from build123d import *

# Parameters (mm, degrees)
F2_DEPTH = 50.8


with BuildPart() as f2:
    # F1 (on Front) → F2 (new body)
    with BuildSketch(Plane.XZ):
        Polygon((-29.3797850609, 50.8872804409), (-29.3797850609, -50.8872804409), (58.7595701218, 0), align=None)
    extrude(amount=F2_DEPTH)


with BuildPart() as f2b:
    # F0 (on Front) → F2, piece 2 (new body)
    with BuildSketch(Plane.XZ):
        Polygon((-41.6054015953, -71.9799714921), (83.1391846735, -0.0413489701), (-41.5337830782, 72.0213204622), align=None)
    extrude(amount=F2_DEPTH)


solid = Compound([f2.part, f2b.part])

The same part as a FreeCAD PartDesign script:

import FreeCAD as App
import Part
import Sketcher
from FreeCAD import Vector
Q = App.Units.Quantity

doc = App.newDocument("Part")
params = doc.addObject("Spreadsheet::Sheet", "Params")
for row, (alias, value) in enumerate([
    ("pad1_length", "2 in"),
    ("pad2_length", "2 in"),
], start=1):
    params.set(f"A{row}", alias)
    params.set(f"B{row}", "=" + value)
    params.setAlias(f"B{row}", alias)

body = doc.addObject("PartDesign::Body", "Body")

# Sketch on XZ plane
sketch1 = body.newObject("Sketcher::SketchObject", "Sketch")
sketch1.AttachmentSupport = (doc.getObject("XZ_Plane"), [""])
sketch1.MapMode = "FlatFace"
sketch1.addGeometry([
    Part.LineSegment(Vector(-29, 51, 0), Vector(-29, -51, 0)),
    Part.LineSegment(Vector(-29, -51, 0), Vector(59, 0, 0)),
    Part.LineSegment(Vector(59, 0, 0), Vector(-29, 51, 0)),
], False)
sketch1.addConstraint([
    Sketcher.Constraint("Coincident", 0, 2, 1, 1),
    Sketcher.Constraint("Coincident", 1, 2, 2, 1),
    Sketcher.Constraint("Coincident", 2, 2, 0, 1),
    Sketcher.Constraint("Vertical", 0),
    Sketcher.Constraint("PointOnObject", 1, 2, -1),
    Sketcher.Constraint("Equal", 1, 2),
    Sketcher.Constraint("Angle", 1, Q("30 deg")),
    Sketcher.Constraint("DistanceY", 0, 2, 0, 1, 101.774561),
    Sketcher.Constraint("DistanceX", -1, 1, 1, 2, 58.75957),
])
pad1 = body.newObject("PartDesign::Pad", "Pad")
pad1.Profile = sketch1
pad1.setExpression("Length", "Params.pad1_length")
body2 = doc.addObject("PartDesign::Body", "Body001")

# Sketch on XZ plane
sketch2 = body2.newObject("Sketcher::SketchObject", "Sketch001")
sketch2.AttachmentSupport = (doc.getObject("XZ_Plane001"), [""])
sketch2.MapMode = "FlatFace"
sketch2.addGeometry([
    Part.LineSegment(Vector(-42, -72, 0), Vector(83, 0, 0)),
    Part.LineSegment(Vector(83, 0, 0), Vector(-42, 72, 0)),
    Part.LineSegment(Vector(-42, 72, 0), Vector(-42, -72, 0)),
], False)
sketch2.addConstraint([
    Sketcher.Constraint("Coincident", 0, 2, 1, 1),
    Sketcher.Constraint("Coincident", 1, 2, 2, 1),
    Sketcher.Constraint("Coincident", 2, 2, 0, 1),
    Sketcher.Constraint("Equal", 0, 1),
    Sketcher.Constraint("Equal", 1, 2),
    Sketcher.Constraint("DistanceX", 2, 2, -1, 1, 41.605402),
    Sketcher.Constraint("Distance", 0, 144.00131),
    Sketcher.Constraint("DistanceY", 0, 2, -1, 1, 0.041349),
    Sketcher.Constraint("DistanceY", -1, 1, 1, 2, 72.02132),
])
pad2 = body2.newObject("PartDesign::Pad", "Pad001")
pad2.Profile = sketch2
pad2.setExpression("Length", "Params.pad2_length")

doc.recompute()
